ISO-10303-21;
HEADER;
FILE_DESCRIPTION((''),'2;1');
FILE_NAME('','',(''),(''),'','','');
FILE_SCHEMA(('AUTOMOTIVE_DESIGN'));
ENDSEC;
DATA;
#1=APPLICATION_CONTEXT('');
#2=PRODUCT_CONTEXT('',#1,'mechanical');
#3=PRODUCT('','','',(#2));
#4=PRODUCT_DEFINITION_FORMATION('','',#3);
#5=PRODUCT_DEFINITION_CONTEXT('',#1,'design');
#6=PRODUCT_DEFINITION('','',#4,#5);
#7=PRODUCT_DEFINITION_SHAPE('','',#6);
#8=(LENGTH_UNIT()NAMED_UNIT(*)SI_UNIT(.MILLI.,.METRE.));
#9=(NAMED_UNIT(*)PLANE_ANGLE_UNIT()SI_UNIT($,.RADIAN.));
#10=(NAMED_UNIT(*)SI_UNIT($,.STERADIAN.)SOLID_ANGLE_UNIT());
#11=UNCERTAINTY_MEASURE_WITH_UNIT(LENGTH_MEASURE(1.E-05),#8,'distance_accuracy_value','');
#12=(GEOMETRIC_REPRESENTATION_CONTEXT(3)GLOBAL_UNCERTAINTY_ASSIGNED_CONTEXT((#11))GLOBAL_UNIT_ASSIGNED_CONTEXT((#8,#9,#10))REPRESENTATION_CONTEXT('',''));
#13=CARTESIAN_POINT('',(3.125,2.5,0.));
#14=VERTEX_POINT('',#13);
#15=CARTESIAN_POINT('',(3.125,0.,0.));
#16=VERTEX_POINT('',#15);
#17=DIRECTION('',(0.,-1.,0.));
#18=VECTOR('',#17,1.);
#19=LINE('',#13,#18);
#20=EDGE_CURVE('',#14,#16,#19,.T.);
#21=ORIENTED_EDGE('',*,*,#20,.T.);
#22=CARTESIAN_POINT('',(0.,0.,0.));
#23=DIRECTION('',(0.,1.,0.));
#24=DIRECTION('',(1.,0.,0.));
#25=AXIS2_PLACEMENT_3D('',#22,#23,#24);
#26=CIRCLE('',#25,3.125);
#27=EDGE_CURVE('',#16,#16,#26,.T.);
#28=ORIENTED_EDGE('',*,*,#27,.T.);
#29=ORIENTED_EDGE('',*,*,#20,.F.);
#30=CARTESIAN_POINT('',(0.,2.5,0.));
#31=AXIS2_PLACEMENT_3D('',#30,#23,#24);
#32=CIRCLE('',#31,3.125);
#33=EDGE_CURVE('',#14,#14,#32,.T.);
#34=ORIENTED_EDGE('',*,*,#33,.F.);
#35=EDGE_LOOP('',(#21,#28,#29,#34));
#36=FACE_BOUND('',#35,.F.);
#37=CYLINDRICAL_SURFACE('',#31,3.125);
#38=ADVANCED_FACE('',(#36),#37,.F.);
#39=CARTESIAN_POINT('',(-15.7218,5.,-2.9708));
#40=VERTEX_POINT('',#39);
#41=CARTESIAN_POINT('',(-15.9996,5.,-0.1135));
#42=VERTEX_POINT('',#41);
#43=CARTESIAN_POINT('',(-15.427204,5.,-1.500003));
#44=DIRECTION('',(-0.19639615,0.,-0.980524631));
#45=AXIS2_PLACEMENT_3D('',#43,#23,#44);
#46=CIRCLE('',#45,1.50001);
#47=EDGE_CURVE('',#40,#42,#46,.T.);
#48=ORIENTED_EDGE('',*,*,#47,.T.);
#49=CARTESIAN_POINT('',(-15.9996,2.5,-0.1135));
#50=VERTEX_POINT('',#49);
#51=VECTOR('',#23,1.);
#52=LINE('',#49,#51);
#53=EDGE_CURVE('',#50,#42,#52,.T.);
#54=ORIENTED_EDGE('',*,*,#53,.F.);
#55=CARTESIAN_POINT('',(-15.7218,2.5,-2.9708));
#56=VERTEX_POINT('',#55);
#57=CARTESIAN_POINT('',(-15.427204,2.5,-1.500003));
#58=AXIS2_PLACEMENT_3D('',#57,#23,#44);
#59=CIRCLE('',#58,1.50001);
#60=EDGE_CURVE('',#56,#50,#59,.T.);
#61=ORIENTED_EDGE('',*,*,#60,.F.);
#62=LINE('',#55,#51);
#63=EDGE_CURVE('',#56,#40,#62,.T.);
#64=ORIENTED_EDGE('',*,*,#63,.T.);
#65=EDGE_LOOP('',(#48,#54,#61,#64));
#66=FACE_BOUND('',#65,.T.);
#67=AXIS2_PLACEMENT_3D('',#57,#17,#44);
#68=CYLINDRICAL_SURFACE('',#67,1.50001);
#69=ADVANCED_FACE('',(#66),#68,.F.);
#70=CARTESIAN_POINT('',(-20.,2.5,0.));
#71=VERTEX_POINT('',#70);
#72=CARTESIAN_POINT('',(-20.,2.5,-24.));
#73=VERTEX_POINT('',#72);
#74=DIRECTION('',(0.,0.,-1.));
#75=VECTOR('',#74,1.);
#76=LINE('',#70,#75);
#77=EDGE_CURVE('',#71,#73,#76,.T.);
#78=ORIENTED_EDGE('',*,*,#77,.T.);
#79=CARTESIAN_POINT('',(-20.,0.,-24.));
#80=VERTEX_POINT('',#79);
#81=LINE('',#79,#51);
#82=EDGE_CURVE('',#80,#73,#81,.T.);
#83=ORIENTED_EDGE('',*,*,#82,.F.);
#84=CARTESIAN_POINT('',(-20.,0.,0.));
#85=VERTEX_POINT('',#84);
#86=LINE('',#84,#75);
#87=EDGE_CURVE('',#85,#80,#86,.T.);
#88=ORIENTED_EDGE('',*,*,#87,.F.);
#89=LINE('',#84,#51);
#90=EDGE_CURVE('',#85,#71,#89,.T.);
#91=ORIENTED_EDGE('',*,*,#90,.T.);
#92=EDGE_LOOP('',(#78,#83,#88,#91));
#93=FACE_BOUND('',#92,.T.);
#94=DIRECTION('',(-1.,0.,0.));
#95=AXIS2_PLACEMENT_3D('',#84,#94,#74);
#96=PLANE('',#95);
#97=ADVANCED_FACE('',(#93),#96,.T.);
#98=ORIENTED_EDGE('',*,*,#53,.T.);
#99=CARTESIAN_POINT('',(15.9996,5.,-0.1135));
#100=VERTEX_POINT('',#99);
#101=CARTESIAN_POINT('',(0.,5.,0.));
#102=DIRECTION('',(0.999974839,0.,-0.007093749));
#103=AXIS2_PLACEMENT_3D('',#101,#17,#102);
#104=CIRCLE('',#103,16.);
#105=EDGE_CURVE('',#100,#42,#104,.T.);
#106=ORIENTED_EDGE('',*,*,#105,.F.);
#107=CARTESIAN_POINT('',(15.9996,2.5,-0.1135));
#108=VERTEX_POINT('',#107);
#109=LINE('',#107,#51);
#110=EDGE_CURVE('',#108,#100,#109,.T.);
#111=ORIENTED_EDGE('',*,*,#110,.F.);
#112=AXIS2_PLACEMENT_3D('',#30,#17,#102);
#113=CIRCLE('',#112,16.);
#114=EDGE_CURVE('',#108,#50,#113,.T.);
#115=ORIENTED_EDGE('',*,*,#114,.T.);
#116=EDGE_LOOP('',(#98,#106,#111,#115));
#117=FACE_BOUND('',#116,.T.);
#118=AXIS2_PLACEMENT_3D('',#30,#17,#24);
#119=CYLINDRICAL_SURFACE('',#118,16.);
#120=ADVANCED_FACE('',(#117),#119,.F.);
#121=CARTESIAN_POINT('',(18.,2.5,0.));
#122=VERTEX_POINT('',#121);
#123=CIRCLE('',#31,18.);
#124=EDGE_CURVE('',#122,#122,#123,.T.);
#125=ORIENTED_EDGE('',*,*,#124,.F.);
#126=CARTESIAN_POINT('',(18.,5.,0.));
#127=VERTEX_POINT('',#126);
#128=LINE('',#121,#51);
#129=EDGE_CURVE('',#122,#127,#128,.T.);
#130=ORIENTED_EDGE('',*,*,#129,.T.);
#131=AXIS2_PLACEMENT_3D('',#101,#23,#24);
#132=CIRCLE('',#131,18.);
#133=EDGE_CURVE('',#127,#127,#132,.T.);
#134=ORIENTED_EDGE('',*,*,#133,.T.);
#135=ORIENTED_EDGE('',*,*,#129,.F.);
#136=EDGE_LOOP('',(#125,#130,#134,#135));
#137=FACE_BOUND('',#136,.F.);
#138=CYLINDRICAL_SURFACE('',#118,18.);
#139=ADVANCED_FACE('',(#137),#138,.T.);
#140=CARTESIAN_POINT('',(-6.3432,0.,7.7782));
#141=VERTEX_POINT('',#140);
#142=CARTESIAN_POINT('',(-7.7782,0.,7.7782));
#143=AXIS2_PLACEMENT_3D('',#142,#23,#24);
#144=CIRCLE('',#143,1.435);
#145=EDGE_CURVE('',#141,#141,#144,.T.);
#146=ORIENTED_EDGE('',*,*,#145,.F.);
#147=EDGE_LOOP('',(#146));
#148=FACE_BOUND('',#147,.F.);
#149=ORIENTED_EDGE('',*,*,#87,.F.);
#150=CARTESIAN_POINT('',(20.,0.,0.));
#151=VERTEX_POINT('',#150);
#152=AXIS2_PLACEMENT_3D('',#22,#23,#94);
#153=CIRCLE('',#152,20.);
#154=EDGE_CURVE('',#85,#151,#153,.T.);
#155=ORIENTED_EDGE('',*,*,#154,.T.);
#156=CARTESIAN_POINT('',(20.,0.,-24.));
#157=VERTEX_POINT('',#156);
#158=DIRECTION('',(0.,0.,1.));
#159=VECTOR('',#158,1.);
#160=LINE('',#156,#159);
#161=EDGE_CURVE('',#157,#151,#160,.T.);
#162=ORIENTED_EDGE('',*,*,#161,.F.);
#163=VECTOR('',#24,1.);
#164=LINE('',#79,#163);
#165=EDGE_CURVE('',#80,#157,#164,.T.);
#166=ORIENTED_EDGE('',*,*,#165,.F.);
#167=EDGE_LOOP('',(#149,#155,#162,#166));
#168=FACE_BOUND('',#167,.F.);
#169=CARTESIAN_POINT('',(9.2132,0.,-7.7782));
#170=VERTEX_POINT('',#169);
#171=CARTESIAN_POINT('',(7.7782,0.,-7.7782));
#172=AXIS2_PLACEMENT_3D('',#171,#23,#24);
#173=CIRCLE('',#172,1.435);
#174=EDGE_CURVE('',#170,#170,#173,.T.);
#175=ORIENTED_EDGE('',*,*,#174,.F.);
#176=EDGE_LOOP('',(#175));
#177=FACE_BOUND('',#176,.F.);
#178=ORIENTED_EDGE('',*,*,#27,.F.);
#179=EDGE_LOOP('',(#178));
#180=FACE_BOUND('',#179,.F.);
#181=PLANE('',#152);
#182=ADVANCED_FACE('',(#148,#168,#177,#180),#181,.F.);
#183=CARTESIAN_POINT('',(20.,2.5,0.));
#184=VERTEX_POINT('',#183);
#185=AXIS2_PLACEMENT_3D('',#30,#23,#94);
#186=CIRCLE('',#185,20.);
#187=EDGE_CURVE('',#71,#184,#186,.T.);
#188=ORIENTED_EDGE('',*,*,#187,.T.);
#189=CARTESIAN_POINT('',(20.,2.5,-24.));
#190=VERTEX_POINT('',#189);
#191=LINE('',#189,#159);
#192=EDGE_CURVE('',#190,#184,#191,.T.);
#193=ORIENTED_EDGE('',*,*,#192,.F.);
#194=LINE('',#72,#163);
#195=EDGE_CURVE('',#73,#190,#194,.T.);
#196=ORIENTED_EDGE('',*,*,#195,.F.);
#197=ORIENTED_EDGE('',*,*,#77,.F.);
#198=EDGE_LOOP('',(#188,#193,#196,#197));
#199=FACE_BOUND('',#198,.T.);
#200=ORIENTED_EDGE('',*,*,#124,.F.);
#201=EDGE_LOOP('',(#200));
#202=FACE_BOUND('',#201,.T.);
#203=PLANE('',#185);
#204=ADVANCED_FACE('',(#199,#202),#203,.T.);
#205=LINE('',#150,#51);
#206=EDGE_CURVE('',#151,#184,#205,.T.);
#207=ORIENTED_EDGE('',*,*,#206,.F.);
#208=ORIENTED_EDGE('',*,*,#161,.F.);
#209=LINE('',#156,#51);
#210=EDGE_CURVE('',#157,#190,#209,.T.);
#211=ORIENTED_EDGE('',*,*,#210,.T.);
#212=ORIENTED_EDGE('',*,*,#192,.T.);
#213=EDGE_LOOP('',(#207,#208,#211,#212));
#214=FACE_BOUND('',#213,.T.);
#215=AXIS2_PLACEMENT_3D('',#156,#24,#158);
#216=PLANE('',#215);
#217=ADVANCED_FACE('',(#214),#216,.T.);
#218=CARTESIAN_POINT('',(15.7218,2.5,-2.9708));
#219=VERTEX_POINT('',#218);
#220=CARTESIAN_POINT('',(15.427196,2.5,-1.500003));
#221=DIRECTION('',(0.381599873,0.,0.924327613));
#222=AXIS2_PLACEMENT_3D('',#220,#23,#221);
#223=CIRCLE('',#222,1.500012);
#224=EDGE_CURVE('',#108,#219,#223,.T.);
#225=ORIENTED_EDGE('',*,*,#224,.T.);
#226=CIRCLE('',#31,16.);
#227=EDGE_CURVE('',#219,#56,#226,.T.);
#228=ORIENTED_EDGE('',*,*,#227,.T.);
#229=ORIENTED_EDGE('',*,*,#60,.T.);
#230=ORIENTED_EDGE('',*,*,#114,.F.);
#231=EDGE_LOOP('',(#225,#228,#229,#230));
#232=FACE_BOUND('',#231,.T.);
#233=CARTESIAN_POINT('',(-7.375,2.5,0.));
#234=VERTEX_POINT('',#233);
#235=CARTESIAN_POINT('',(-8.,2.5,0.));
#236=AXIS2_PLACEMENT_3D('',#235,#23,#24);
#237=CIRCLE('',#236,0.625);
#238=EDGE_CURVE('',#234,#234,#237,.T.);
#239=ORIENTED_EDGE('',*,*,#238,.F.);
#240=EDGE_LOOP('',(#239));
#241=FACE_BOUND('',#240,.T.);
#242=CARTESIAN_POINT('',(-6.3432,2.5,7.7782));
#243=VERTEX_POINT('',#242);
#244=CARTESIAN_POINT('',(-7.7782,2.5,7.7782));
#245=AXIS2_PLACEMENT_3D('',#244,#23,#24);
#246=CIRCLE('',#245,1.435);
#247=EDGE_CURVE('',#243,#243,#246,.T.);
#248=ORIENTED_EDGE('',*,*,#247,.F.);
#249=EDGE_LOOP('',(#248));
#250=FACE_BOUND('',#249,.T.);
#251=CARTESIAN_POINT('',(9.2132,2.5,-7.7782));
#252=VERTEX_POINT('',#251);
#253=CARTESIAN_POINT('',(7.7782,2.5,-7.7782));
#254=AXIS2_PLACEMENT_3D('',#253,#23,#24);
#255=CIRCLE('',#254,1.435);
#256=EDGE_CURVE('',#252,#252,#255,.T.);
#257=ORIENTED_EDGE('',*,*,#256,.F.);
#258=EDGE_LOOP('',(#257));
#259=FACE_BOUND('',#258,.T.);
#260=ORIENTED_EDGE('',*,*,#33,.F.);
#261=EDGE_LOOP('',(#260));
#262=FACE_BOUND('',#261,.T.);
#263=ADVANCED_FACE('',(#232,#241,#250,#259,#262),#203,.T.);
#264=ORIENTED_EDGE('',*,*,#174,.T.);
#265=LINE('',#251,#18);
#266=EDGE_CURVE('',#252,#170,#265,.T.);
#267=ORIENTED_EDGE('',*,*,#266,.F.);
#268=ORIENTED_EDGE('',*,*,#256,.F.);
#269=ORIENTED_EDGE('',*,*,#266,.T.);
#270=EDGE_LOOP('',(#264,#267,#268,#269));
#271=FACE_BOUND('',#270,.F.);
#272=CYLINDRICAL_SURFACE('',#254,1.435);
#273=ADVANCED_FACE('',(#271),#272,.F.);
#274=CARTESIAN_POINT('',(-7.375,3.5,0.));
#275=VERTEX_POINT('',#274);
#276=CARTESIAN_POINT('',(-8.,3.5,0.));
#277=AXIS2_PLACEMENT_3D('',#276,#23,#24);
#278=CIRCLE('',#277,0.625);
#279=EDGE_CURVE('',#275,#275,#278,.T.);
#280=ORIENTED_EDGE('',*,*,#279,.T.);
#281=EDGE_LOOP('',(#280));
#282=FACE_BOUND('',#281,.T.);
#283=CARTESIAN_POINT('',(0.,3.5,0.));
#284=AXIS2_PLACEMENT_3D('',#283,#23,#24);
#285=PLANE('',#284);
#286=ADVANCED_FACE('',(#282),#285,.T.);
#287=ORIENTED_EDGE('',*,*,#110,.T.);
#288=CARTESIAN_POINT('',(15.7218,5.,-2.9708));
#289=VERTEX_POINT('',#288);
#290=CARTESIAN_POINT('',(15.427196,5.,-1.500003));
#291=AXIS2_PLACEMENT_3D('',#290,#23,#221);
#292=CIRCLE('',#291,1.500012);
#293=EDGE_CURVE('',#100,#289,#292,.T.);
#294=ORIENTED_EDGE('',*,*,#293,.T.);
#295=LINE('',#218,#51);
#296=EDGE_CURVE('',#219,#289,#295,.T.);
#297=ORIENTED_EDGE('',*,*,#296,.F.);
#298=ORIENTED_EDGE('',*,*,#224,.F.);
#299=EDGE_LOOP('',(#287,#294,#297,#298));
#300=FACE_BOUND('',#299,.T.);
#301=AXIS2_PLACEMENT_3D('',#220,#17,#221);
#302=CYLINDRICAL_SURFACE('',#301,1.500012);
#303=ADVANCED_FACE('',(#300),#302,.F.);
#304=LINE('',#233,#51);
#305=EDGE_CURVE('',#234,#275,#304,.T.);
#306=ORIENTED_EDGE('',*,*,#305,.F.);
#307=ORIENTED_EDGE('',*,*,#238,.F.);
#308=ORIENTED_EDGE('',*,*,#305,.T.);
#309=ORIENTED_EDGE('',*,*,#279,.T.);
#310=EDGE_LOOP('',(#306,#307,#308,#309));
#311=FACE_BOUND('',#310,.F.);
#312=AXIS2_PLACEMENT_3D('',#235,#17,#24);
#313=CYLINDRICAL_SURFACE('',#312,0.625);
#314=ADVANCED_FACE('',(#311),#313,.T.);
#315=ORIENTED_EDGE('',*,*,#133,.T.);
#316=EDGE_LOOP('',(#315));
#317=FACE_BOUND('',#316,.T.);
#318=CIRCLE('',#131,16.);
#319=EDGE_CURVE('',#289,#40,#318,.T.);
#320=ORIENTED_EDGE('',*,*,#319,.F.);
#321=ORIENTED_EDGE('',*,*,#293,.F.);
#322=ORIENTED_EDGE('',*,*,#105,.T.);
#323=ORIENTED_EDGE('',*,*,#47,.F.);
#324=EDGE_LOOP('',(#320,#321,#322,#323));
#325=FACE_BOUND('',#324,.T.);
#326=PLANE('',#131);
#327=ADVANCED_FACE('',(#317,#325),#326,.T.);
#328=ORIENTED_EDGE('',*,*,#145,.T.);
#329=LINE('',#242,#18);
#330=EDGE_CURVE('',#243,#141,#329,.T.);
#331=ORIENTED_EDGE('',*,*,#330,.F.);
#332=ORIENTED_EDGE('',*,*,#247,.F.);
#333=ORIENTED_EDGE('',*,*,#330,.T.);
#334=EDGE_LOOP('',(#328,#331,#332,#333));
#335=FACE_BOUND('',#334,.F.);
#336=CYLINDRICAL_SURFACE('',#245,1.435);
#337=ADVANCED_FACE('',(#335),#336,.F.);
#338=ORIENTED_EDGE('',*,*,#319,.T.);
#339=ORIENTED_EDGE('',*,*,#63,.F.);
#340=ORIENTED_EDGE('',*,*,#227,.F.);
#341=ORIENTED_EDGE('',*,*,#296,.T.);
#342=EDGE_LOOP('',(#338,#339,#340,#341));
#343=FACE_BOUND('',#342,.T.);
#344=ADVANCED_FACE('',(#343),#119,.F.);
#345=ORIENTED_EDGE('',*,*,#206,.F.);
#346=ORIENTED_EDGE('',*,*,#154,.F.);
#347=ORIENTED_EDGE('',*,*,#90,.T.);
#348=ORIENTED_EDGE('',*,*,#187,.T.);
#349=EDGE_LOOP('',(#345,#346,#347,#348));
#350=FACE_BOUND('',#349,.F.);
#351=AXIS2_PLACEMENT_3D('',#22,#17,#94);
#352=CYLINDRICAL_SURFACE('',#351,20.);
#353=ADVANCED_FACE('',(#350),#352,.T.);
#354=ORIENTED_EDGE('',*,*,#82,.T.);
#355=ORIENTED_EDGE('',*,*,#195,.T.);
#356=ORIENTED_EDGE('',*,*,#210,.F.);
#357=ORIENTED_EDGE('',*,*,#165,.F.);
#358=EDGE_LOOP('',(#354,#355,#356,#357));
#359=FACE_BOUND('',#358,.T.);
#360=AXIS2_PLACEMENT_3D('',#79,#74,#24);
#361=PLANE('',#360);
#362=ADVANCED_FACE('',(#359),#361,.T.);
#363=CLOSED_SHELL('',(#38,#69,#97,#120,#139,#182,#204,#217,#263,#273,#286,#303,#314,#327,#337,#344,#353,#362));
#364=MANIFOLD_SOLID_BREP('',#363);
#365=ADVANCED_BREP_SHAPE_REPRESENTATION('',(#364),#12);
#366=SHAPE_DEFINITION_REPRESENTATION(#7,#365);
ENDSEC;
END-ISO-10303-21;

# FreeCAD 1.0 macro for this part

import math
import FreeCAD as App
import Part
import Sketcher

V = App.Vector

doc = App.newDocument("Part")
body = doc.addObject("PartDesign::Body", "Body")

# Sketch on XZ plane
sketch1 = doc.addObject("Sketcher::SketchObject", "Sketch")
body.addObject(sketch1)
sketch1.AttachmentSupport = (doc.XZ_Plane, [""])
sketch1.MapMode = "FlatFace"
sketch1.addGeometry(Part.LineSegment(V(-20, -24, 0), V(-20, 0, 0)), False)
sketch1.addGeometry(Part.ArcOfCircle(Part.Circle(V(0, 0, 0), V(0, 0, 1), 20), math.radians(0), math.radians(180)), False)
sketch1.addGeometry(Part.LineSegment(V(20, 0, 0), V(20, -24, 0)), False)
sketch1.addGeometry(Part.LineSegment(V(20, -24, 0), V(-20, -24, 0)), False)
sketch1.addConstraint(Sketcher.Constraint("Tangent", 0, 2, 1, 2))
sketch1.addConstraint(Sketcher.Constraint("Tangent", 1, 1, 2, 1))
sketch1.addConstraint(Sketcher.Constraint("Coincident", 2, 2, 3, 1))
sketch1.addConstraint(Sketcher.Constraint("Coincident", 3, 2, 0, 1))
sketch1.addConstraint(Sketcher.Constraint("Vertical", 0))
sketch1.addConstraint(Sketcher.Constraint("Vertical", 2))
sketch1.addConstraint(Sketcher.Constraint("Horizontal", 3))
sketch1.addConstraint(Sketcher.Constraint("Coincident", 1, 3, -1, 1))
sketch1.addConstraint(Sketcher.Constraint("Radius", 1, 20.0))
sketch1.addConstraint(Sketcher.Constraint("DistanceY", 0, 1, 0, 2, 24.0))
pad1 = doc.addObject("PartDesign::Pad", "Pad")
body.addObject(pad1)
pad1.Profile = sketch1
pad1.Length = 2.5
pad1.Reversed = True

# Sketch on XZ plane
sketch2 = doc.addObject("Sketcher::SketchObject", "Sketch001")
body.addObject(sketch2)
sketch2.AttachmentSupport = (doc.XZ_Plane, [""])
sketch2.MapMode = "FlatFace"
sketch2.AttachmentOffset = App.Placement(V(0, 0, -2.5), App.Rotation())
sketch2.addGeometry(Part.Circle(V(0, 0, 0), V(0, 0, 1), 18), False)
sketch2.addGeometry(Part.ArcOfCircle(Part.Circle(V(0, 0, 0), V(0, 0, 1), 16), math.radians(-0.406445), math.radians(180.406445)), False)
sketch2.addGeometry(Part.ArcOfCircle(Part.Circle(V(-15.4272, -1.5, 0), V(0, 0, 1), 1.500014), math.radians(112.432699), math.radians(258.673587)), False)
sketch2.addGeometry(Part.ArcOfCircle(Part.Circle(V(0, 0, 0), V(0, 0, 1), 16), math.radians(-169.299525), math.radians(-10.700475)), False)
sketch2.addGeometry(Part.ArcOfCircle(Part.Circle(V(15.4272, -1.5, 0), V(0, 0, 1), 1.500008), math.radians(-78.673587), math.radians(67.567301)), False)
sketch2.addConstraint(Sketcher.Constraint("Coincident", 1, 2, 2, 1))
sketch2.addConstraint(Sketcher.Constraint("Coincident", 2, 2, 3, 1))
sketch2.addConstraint(Sketcher.Constraint("Coincident", 3, 2, 4, 1))
sketch2.addConstraint(Sketcher.Constraint("Coincident", 4, 2, 1, 1))
sketch2.addConstraint(Sketcher.Constraint("Coincident", 0, 3, -1, 1))
sketch2.addConstraint(Sketcher.Constraint("Coincident", 1, 3, -1, 1))
sketch2.addConstraint(Sketcher.Constraint("Coincident", 3, 3, -1, 1))
sketch2.addConstraint(Sketcher.Constraint("Equal", 1, 3))
sketch2.addConstraint(Sketcher.Constraint("Equal", 2, 4))
sketch2.addConstraint(Sketcher.Constraint("Symmetric", 2, 3, 4, 3, -2))
sketch2.addConstraint(Sketcher.Constraint("Diameter", 0, 36.0))
sketch2.addConstraint(Sketcher.Constraint("Radius", 2, 1.5))
sketch2.addConstraint(Sketcher.Constraint("Radius", 1, 16.0))
sketch2.addConstraint(Sketcher.Constraint("DistanceY", 2, 3, -1, 1, 1.5))
sketch2.addConstraint(Sketcher.Constraint("DistanceX", 2, 3, 3, 2, 31.149))
pad2 = doc.addObject("PartDesign::Pad", "Pad001")
body.addObject(pad2)
pad2.Profile = sketch2
pad2.Length = 2.5
pad2.Reversed = True

# Sketch on XZ plane
sketch3 = doc.addObject("Sketcher::SketchObject", "Sketch002")
body.addObject(sketch3)
sketch3.AttachmentSupport = (doc.XZ_Plane, [""])
sketch3.MapMode = "FlatFace"
sketch3.AttachmentOffset = App.Placement(V(0, 0, -2.5), App.Rotation())
sketch3.addGeometry(Part.Circle(V(0, 0, 0), V(0, 0, 1), 3.125), False)
sketch3.addConstraint(Sketcher.Constraint("Coincident", 0, 3, -1, 1))
sketch3.addConstraint(Sketcher.Constraint("Diameter", 0, 6.25))
pocket1 = doc.addObject("PartDesign::Pocket", "Pocket")
body.addObject(pocket1)
pocket1.Profile = sketch3
pocket1.Type = "ThroughAll"
pocket1.Reversed = True

# Sketch on XZ plane
sketch4 = doc.addObject("Sketcher::SketchObject", "Sketch003")
body.addObject(sketch4)
sketch4.AttachmentSupport = (doc.XZ_Plane, [""])
sketch4.MapMode = "FlatFace"
sketch4.AttachmentOffset = App.Placement(V(0, 0, -2.5), App.Rotation())
sketch4.addGeometry(Part.Circle(V(-8, 0, 0), V(0, 0, 1), 0.625), False)
sketch4.addConstraint(Sketcher.Constraint("PointOnObject", 0, 3, -1))
sketch4.addConstraint(Sketcher.Constraint("Diameter", 0, 1.25))
sketch4.addConstraint(Sketcher.Constraint("DistanceX", 0, 3, -1, 1, 8.0))
pad3 = doc.addObject("PartDesign::Pad", "Pad002")
body.addObject(pad3)
pad3.Profile = sketch4
pad3.Length = 1
pad3.Reversed = True

# Sketch on XZ plane
sketch5 = doc.addObject("Sketcher::SketchObject", "Sketch004")
body.addObject(sketch5)
sketch5.AttachmentSupport = (doc.XZ_Plane, [""])
sketch5.MapMode = "FlatFace"
sketch5.AttachmentOffset = App.Placement(V(0, 0, -2.5), App.Rotation())
sketch5.addGeometry(Part.Circle(V(7.7782, -7.7782, 0), V(0, 0, 1), 1.435), False)
sketch5.addGeometry(Part.Circle(V(-7.7782, 7.7782, 0), V(0, 0, 1), 1.435), False)
sketch5.addConstraint(Sketcher.Constraint("Equal", 0, 1))
sketch5.addConstraint(Sketcher.Constraint("Symmetric", 0, 3, 1, 3, -1, 1))
sketch5.addConstraint(Sketcher.Constraint("Diameter", 0, 2.87))
sketch5.addConstraint(Sketcher.Constraint("DistanceX", -1, 1, 0, 3, 7.7782))
sketch5.addConstraint(Sketcher.Constraint("DistanceY", 0, 3, -1, 1, 7.7782))
pocket2 = doc.addObject("PartDesign::Pocket", "Pocket001")
body.addObject(pocket2)
pocket2.Profile = sketch5
pocket2.Type = "ThroughAll"
pocket2.Reversed = True

doc.recompute()
